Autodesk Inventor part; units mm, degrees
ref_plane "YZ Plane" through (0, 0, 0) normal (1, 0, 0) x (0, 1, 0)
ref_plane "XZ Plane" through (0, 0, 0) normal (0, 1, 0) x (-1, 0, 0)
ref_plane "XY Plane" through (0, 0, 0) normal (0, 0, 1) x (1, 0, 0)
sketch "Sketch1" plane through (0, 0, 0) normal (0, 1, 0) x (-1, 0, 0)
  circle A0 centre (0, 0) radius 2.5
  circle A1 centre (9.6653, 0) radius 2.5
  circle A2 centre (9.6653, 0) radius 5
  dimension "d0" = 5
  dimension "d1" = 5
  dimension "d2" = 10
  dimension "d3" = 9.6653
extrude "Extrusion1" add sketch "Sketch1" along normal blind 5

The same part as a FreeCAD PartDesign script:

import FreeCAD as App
import Part
import Sketcher

doc = App.newDocument("Part")
body = doc.addObject("PartDesign::Body", "Body")
body.AllowCompound = True

sketch1 = doc.addObject("Sketcher::SketchObject", "Sketch")
body.addObject(sketch1)
sketch1.AttachmentSupport = (doc.XZ_Plane, [""])
sketch1.MapMode = "FlatFace"
sketch1.addGeometry([
    Part.Circle(App.Vector(0, 0, 0), App.Vector(0, 0, 1), 2.5),
    Part.Circle(App.Vector(-9.7, 0, 0), App.Vector(0, 0, 1), 5),
    Part.Circle(App.Vector(-9.7, 0, 0), App.Vector(0, 0, 1), 2.5),
], False)
sketch1.addConstraint([
    Sketcher.Constraint("Coincident", 0, 3, -1, 1),
    Sketcher.Constraint("Coincident", 2, 3, 1, 3),
    Sketcher.Constraint("Equal", 0, 2),
    Sketcher.Constraint("PointOnObject", 1, 3, -1),
    Sketcher.Constraint("Diameter", 0, 5.0),
    Sketcher.Constraint("Diameter", 1, 10.0),
    Sketcher.Constraint("DistanceX", 1, 3, -1, 1, 9.6653),
])
pad1 = doc.addObject("PartDesign::Pad", "Pad")
body.addObject(pad1)
pad1.Profile = sketch1
pad1.Length = 5
pad1.Reversed = True

doc.recompute()
